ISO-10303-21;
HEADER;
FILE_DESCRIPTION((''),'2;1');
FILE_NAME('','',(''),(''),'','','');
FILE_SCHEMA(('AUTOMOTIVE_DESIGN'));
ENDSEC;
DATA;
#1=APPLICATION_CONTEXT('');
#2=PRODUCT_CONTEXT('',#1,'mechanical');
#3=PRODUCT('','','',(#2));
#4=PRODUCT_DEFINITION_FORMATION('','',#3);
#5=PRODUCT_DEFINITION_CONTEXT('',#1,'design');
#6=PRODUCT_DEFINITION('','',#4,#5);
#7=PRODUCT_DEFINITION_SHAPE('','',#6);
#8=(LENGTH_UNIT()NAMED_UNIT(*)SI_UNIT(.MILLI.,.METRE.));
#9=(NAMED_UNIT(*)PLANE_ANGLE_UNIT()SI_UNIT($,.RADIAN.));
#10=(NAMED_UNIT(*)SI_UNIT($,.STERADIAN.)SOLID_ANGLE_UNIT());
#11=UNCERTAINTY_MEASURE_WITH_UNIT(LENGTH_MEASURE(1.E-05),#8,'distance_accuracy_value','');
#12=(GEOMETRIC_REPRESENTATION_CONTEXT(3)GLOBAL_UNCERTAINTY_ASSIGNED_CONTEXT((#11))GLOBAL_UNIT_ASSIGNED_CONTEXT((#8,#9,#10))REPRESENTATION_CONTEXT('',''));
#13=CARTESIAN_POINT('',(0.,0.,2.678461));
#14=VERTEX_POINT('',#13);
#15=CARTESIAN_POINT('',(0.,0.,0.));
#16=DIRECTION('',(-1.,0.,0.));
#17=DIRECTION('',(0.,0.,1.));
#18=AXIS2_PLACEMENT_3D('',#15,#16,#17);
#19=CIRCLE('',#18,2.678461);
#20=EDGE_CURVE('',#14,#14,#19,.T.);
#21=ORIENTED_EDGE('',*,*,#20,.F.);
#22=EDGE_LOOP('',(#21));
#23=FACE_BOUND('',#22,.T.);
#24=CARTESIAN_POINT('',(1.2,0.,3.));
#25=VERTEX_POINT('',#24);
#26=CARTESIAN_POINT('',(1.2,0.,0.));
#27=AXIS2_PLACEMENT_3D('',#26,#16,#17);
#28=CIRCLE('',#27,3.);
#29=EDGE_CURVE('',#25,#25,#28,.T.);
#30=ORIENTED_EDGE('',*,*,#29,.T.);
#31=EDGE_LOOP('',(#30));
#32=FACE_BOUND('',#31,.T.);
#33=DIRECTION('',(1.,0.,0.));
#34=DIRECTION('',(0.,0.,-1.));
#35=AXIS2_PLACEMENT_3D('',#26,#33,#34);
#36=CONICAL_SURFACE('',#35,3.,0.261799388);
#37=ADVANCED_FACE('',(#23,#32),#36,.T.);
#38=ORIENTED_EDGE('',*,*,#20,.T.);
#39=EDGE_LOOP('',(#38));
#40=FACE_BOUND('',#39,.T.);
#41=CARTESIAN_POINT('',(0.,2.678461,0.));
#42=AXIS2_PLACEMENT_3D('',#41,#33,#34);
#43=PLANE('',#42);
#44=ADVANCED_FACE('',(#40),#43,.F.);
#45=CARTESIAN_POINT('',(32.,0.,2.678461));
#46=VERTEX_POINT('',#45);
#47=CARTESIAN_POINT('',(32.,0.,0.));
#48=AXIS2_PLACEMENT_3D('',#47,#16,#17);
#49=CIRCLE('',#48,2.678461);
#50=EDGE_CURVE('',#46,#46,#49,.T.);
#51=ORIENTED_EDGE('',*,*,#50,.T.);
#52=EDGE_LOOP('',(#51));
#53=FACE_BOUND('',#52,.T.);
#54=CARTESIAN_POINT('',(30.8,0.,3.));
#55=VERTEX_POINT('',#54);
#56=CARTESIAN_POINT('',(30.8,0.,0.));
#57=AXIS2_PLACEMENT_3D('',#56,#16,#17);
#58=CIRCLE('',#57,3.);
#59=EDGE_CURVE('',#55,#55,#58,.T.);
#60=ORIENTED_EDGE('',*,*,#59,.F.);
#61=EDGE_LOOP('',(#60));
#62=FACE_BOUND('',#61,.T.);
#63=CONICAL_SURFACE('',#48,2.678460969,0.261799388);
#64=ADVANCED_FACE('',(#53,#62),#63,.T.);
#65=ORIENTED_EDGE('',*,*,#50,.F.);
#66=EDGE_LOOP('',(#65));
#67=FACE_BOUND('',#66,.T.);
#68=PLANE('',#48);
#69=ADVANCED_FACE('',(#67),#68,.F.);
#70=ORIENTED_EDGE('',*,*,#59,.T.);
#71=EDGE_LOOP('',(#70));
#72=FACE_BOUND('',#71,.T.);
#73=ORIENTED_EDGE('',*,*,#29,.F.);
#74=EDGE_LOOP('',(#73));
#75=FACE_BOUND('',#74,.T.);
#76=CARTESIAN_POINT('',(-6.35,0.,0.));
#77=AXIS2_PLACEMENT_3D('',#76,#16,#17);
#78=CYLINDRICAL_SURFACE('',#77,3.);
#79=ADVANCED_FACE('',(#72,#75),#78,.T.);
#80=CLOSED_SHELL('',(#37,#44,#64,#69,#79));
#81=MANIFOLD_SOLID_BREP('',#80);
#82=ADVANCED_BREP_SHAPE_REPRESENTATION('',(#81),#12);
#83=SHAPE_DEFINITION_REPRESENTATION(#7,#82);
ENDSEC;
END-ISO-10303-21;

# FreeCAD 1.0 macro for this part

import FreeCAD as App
import Part
import Sketcher
from FreeCAD import Vector
Q = App.Units.Quantity

doc = App.newDocument("Part")
body = doc.addObject("PartDesign::Body", "Body")

# Sketch on XY plane
sketch1 = body.newObject("Sketcher::SketchObject", "Sketch")
sketch1.AttachmentSupport = (doc.getObject("XY_Plane"), [""])
sketch1.MapMode = "FlatFace"
sketch1.addGeometry([
    Part.LineSegment(Vector(0, 0, 0), Vector(32, 0, 0)),  # 0
    Part.LineSegment(Vector(32, 0, 0), Vector(32, 2.7, 0)),  # 1
    Part.LineSegment(Vector(32, 2.7, 0), Vector(30.8, 3, 0)),  # 2
    Part.LineSegment(Vector(30.8, 3, 0), Vector(1.2, 3, 0)),  # 3
    Part.LineSegment(Vector(1.2, 3, 0), Vector(0, 2.7, 0)),  # 4
    Part.LineSegment(Vector(0, 2.7, 0), Vector(0, 0, 0)),  # 5
], False)
sketch1.addConstraint([
    Sketcher.Constraint("Coincident", 0, 2, 1, 1),
    Sketcher.Constraint("Coincident", 1, 2, 2, 1),
    Sketcher.Constraint("Coincident", 2, 2, 3, 1),
    Sketcher.Constraint("Coincident", 3, 2, 4, 1),
    Sketcher.Constraint("Coincident", 4, 2, 5, 1),
    Sketcher.Constraint("Coincident", 5, 2, 0, 1),
    Sketcher.Constraint("Horizontal", 0),
    Sketcher.Constraint("Vertical", 1),
    Sketcher.Constraint("Horizontal", 3),
    Sketcher.Constraint("Vertical", 5),
    Sketcher.Constraint("Coincident", 5, 2, -1, 1),
    Sketcher.Constraint("Horizontal", 1, 2, 4, 2),
    Sketcher.Constraint("Equal", 2, 4),
    Sketcher.Constraint("DistanceX", 0, 1, 0, 2, Q("32 mm")),
    Sketcher.Constraint("Angle", 2, Q("165 deg")),
    Sketcher.Constraint("DistanceX", 3, 2, 3, 1, Q("29.6 mm")),
    Sketcher.Constraint("DistanceY", -1, 1, 2, 2, Q("3 mm")),
])
revolution = body.newObject("PartDesign::Revolution", "Revolution")
revolution.Profile = sketch1
revolution.ReferenceAxis = (sketch1, ["H_Axis"])
revolution.Angle = 360

doc.recompute()
